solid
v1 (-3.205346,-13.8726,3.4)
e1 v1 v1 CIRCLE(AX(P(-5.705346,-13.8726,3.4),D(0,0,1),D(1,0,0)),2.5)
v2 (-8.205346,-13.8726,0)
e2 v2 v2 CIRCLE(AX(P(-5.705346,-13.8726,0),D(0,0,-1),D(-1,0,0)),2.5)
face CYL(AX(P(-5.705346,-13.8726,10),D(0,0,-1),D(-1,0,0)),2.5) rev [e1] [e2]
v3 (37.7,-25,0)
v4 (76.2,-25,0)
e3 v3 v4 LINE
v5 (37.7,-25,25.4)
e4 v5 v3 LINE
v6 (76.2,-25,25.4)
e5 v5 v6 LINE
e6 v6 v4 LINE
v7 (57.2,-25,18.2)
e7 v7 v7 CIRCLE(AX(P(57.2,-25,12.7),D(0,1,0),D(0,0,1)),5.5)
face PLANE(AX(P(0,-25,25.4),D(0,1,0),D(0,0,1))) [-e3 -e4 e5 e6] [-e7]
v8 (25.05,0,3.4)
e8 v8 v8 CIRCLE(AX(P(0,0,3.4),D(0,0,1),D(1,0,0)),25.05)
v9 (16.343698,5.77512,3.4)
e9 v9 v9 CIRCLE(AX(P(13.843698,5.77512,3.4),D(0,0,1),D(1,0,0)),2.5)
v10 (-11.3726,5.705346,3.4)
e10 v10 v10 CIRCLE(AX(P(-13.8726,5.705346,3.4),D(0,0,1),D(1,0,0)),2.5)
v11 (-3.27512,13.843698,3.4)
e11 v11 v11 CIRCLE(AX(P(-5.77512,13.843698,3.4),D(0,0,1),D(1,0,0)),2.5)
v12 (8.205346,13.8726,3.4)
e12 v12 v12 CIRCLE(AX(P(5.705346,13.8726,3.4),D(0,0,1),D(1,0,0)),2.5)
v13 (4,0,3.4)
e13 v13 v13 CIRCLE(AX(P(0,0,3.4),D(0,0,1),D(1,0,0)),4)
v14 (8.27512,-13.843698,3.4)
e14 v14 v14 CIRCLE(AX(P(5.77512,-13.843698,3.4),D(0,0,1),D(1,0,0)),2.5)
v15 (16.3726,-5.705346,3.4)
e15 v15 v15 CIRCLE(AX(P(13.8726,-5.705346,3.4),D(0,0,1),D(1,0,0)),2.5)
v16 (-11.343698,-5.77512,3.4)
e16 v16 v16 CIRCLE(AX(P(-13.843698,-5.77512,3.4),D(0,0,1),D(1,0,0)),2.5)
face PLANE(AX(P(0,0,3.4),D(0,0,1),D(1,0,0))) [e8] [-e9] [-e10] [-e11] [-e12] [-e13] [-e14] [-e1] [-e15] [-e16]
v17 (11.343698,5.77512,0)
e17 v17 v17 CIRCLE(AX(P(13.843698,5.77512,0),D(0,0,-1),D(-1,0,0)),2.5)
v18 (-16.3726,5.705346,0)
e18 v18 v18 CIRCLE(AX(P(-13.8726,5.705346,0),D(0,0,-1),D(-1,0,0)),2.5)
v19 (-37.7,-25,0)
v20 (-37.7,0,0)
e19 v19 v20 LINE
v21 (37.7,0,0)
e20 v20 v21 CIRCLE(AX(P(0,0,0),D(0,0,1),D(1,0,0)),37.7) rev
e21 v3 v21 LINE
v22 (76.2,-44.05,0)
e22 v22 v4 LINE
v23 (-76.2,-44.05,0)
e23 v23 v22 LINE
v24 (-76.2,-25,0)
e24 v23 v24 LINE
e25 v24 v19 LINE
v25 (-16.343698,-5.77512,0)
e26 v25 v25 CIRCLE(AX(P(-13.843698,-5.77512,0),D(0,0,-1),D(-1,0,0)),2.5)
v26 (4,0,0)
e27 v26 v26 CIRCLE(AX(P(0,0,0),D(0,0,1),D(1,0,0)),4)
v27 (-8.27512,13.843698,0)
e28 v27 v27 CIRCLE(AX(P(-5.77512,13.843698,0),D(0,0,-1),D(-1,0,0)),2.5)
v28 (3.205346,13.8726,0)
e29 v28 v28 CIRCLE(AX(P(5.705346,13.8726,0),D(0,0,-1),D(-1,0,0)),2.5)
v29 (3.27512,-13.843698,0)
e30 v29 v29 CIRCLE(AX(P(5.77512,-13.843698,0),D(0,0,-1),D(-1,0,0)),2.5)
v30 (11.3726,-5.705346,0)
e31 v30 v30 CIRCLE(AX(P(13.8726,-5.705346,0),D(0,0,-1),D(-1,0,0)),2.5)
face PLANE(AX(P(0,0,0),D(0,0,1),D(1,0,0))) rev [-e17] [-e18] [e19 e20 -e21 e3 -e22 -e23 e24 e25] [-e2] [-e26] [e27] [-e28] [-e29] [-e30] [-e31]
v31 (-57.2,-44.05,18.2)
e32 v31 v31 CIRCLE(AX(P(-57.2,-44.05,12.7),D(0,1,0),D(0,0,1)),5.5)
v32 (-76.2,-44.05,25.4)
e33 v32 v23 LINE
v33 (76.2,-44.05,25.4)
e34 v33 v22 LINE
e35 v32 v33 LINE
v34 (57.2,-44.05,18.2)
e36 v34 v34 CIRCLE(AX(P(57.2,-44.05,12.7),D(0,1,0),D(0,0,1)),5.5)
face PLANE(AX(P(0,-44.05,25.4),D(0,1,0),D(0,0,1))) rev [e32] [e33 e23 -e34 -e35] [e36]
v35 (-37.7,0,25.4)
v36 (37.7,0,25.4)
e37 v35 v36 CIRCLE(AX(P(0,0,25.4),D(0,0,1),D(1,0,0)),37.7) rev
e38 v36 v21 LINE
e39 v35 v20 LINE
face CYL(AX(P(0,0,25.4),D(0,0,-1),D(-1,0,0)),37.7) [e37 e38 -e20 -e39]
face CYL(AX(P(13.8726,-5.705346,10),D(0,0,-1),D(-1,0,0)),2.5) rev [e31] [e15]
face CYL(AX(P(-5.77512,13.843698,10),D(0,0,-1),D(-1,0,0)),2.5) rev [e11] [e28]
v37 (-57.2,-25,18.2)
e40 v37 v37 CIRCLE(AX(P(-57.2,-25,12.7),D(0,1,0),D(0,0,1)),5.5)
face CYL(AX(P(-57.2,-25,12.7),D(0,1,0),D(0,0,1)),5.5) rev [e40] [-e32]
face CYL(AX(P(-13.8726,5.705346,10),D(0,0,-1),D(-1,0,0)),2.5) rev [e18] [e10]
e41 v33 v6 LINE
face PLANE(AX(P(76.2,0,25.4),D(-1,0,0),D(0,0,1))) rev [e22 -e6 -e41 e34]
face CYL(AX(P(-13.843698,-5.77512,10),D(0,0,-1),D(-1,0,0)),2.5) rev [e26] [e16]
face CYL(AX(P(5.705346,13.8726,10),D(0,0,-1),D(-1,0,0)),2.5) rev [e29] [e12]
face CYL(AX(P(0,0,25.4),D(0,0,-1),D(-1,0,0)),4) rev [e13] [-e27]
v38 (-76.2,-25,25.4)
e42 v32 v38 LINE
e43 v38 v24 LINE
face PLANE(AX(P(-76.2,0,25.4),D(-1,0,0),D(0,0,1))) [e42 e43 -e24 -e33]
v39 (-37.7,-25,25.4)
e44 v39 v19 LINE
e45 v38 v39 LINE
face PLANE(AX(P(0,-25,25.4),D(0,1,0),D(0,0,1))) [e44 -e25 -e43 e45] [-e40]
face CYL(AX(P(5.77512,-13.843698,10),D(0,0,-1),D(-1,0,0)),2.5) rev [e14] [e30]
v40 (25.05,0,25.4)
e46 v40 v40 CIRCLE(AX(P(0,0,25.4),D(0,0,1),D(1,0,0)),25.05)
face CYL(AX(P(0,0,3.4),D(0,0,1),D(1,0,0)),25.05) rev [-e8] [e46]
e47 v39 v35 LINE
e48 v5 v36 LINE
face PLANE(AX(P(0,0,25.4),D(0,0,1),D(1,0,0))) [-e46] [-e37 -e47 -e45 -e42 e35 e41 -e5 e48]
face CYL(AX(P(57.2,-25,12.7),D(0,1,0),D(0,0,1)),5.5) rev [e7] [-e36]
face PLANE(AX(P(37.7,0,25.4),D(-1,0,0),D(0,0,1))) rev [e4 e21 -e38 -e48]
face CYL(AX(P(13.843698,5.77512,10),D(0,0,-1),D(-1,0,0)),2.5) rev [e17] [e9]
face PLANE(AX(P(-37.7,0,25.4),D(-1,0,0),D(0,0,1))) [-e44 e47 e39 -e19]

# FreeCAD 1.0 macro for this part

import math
import FreeCAD as App
import Part
import Sketcher
Q = App.Units.Quantity

doc = App.newDocument("Part")
params = doc.addObject("Spreadsheet::Sheet", "Params")
for row, (alias, value) in enumerate([
    ("sketch1_diameter", "8 mm"),
    ("sketch1_radius", "37.7 mm"),
    ("sketch1_height", "25 mm"),
    ("sketch1_width", "152.4 mm"),
    ("sketch1_height2", "19.05 mm"),
    ("pad1_length", "25.4 mm"),
    ("sketch2_diameter", "50.1 mm"),
    ("pocket1_length", "22 mm"),
    ("sketch3_diameter", "11 mm"),
    ("hole_diameter", "11 mm"),
    ("sketch4_diameter", "5 mm"),
    ("pocket2_length", "10 mm"),
], start=1):
    params.set(f"A{row}", alias)
    params.set(f"B{row}", "=" + value)
    params.setAlias(f"B{row}", alias)

body = doc.addObject("PartDesign::Body", "Body")

sketch1 = doc.addObject("Sketcher::SketchObject", "Sketch")
body.addObject(sketch1)
sketch1.AttachmentSupport = (doc.XY_Plane, [""])
sketch1.MapMode = "FlatFace"
sketch1.addGeometry([
    Part.LineSegment(App.Vector(-76.2, -25, 0), App.Vector(-76.2, -44, 0)),
    Part.LineSegment(App.Vector(-76.2, -44, 0), App.Vector(76.2, -44, 0)),
    Part.LineSegment(App.Vector(76.2, -44, 0), App.Vector(76.2, -25, 0)),
    Part.LineSegment(App.Vector(76.2, -25, 0), App.Vector(37.7, -25, 0)),
    Part.LineSegment(App.Vector(37.7, -25, 0), App.Vector(37.7, 0, 0)),
    Part.ArcOfCircle(Part.Circle(App.Vector(0, 0, 0), App.Vector(0, 0, 1), 37.7), math.radians(0), math.radians(180)),
    Part.LineSegment(App.Vector(-37.7, 0, 0), App.Vector(-37.7, -25, 0)),
    Part.LineSegment(App.Vector(-37.7, -25, 0), App.Vector(-76.2, -25, 0)),
    Part.Circle(App.Vector(0, 0, 0), App.Vector(0, 0, 1), 4),
], False)
sketch1.addConstraint([
    Sketcher.Constraint("Coincident", 0, 2, 1, 1),
    Sketcher.Constraint("Coincident", 1, 2, 2, 1),
    Sketcher.Constraint("Coincident", 2, 2, 3, 1),
    Sketcher.Constraint("Coincident", 3, 2, 4, 1),
    Sketcher.Constraint("Tangent", 4, 2, 5, 1),
    Sketcher.Constraint("Tangent", 5, 2, 6, 1),
    Sketcher.Constraint("Coincident", 6, 2, 7, 1),
    Sketcher.Constraint("Coincident", 7, 2, 0, 1),
    Sketcher.Constraint("Vertical", 0),
    Sketcher.Constraint("Horizontal", 1),
    Sketcher.Constraint("Vertical", 2),
    Sketcher.Constraint("Horizontal", 3),
    Sketcher.Constraint("Vertical", 4),
    Sketcher.Constraint("Vertical", 6),
    Sketcher.Constraint("Horizontal", 7),
    Sketcher.Constraint("Coincident", 5, 3, -1, 1),
    Sketcher.Constraint("Coincident", 8, 3, -1, 1),
    Sketcher.Constraint("Symmetric", 2, 2, 7, 2, -2),
    Sketcher.Constraint("Diameter", 8, Q("8 mm")),
    Sketcher.Constraint("Radius", 5, Q("37.7 mm")),
    Sketcher.Constraint("DistanceY", 4, 1, 4, 2, Q("25 mm")),
    Sketcher.Constraint("DistanceX", 1, 1, 1, 2, Q("152.4 mm")),
    Sketcher.Constraint("DistanceY", 0, 2, 0, 1, Q("19.05 mm")),
])
sketch1.setExpression("Constraints[18]", "Params.sketch1_diameter")
sketch1.setExpression("Constraints[19]", "Params.sketch1_radius")
sketch1.setExpression("Constraints[20]", "Params.sketch1_height")
sketch1.setExpression("Constraints[21]", "Params.sketch1_width")
sketch1.setExpression("Constraints[22]", "Params.sketch1_height2")
pad1 = doc.addObject("PartDesign::Pad", "Pad")
body.addObject(pad1)
pad1.Profile = sketch1
pad1.setExpression("Length", "Params.pad1_length")

sketch2 = doc.addObject("Sketcher::SketchObject", "Sketch001")
body.addObject(sketch2)
sketch2.AttachmentSupport = (doc.XY_Plane, [""])
sketch2.MapMode = "FlatFace"
sketch2.AttachmentOffset = App.Placement(App.Vector(0, 0, 25.4), App.Rotation())
sketch2.addGeometry(Part.Circle(App.Vector(0, 0, 0), App.Vector(0, 0, 1), 25), False)
sketch2.addConstraint([
    Sketcher.Constraint("Coincident", 0, 3, -1, 1),
    Sketcher.Constraint("Diameter", 0, Q("50.1 mm")),
])
sketch2.setExpression("Constraints[1]", "Params.sketch2_diameter")
pocket1 = doc.addObject("PartDesign::Pocket", "Pocket")
body.addObject(pocket1)
pocket1.Profile = sketch2
pocket1.setExpression("Length", "Params.pocket1_length")

sketch3 = doc.addObject("Sketcher::SketchObject", "Sketch002")
body.addObject(sketch3)
sketch3.AttachmentSupport = (doc.XZ_Plane, [""])
sketch3.MapMode = "FlatFace"
sketch3.AttachmentOffset = App.Placement(App.Vector(0, 0, 25), App.Rotation())
sketch3.addGeometry([
    Part.Circle(App.Vector(-57, 13, 0), App.Vector(0, 0, 1), 6),
    Part.Circle(App.Vector(57, 13, 0), App.Vector(0, 0, 1), 6),
], False)
sketch3.addConstraint([
    Sketcher.Constraint("Equal", 0, 1),
    Sketcher.Constraint("Symmetric", 0, 3, 1, 3, -2),
    Sketcher.Constraint("Diameter", 0, Q("11 mm")),
    Sketcher.Constraint("DistanceX", 0, 3, -1, 1, Q("57.2 mm")),
    Sketcher.Constraint("DistanceY", -1, 1, 0, 3, Q("12.7 mm")),
])
sketch3.setExpression("Constraints[2]", "Params.sketch3_diameter")
doc.recompute()
hole = doc.addObject("PartDesign::Hole", "Hole")
body.addObject(hole)
hole.Profile = sketch3
hole.ThreadType = "None"
hole.setExpression("Diameter", "Params.hole_diameter")
hole.DepthType = "ThroughAll"
hole.Reversed = True

sketch4 = doc.addObject("Sketcher::SketchObject", "Sketch003")
body.addObject(sketch4)
sketch4.AttachmentSupport = (doc.XY_Plane, [""])
sketch4.MapMode = "FlatFace"
sketch4.addGeometry([
    Part.Circle(App.Vector(-5.8, 13.8, 0), App.Vector(0, 0, 1), 2.5),
    Part.Circle(App.Vector(5.7, 13.9, 0), App.Vector(0, 0, 1), 2.5),
    Part.Circle(App.Vector(13.8, 5.8, 0), App.Vector(0, 0, 1), 2.5),
    Part.Circle(App.Vector(13.9, -5.7, 0), App.Vector(0, 0, 1), 2.5),
    Part.Circle(App.Vector(5.8, -13.8, 0), App.Vector(0, 0, 1), 2.5),
    Part.Circle(App.Vector(-5.7, -13.9, 0), App.Vector(0, 0, 1), 2.5),
    Part.Circle(App.Vector(-13.8, -5.8, 0), App.Vector(0, 0, 1), 2.5),
    Part.Circle(App.Vector(-13.9, 5.7, 0), App.Vector(0, 0, 1), 2.5),
], False)
sketch4.addConstraint([
    Sketcher.Constraint("Equal", 0, 1),
    Sketcher.Constraint("Equal", 1, 2),
    Sketcher.Constraint("Equal", 2, 3),
    Sketcher.Constraint("Equal", 3, 4),
    Sketcher.Constraint("Equal", 4, 5),
    Sketcher.Constraint("Equal", 5, 6),
    Sketcher.Constraint("Equal", 6, 7),
    Sketcher.Constraint("Symmetric", 0, 3, 4, 3, -1, 1),
    Sketcher.Constraint("Symmetric", 1, 3, 5, 3, -1, 1),
    Sketcher.Constraint("Symmetric", 2, 3, 6, 3, -1, 1),
    Sketcher.Constraint("Symmetric", 3, 3, 7, 3, -1, 1),
    Sketcher.Constraint("Diameter", 0, Q("5 mm")),
    Sketcher.Constraint("DistanceY", -1, 1, 0, 3, Q("13.843698 mm")),
    Sketcher.Constraint("DistanceY", -1, 1, 1, 3, Q("13.8726 mm")),
    Sketcher.Constraint("DistanceX", -1, 1, 2, 3, Q("13.843698 mm")),
    Sketcher.Constraint("DistanceX", -1, 1, 3, 3, Q("13.8726 mm")),
    Sketcher.Constraint("DistanceX", 0, 3, -1, 1, Q("5.77512 mm")),
    Sketcher.Constraint("DistanceY", -1, 1, 2, 3, Q("5.77512 mm")),
    Sketcher.Constraint("DistanceX", -1, 1, 1, 3, Q("5.705346 mm")),
    Sketcher.Constraint("DistanceY", 3, 3, -1, 1, Q("5.705346 mm")),
])
sketch4.setExpression("Constraints[11]", "Params.sketch4_diameter")
pocket2 = doc.addObject("PartDesign::Pocket", "Pocket001")
body.addObject(pocket2)
pocket2.Profile = sketch4
pocket2.setExpression("Length", "Params.pocket2_length")
pocket2.Reversed = True

doc.recompute()
